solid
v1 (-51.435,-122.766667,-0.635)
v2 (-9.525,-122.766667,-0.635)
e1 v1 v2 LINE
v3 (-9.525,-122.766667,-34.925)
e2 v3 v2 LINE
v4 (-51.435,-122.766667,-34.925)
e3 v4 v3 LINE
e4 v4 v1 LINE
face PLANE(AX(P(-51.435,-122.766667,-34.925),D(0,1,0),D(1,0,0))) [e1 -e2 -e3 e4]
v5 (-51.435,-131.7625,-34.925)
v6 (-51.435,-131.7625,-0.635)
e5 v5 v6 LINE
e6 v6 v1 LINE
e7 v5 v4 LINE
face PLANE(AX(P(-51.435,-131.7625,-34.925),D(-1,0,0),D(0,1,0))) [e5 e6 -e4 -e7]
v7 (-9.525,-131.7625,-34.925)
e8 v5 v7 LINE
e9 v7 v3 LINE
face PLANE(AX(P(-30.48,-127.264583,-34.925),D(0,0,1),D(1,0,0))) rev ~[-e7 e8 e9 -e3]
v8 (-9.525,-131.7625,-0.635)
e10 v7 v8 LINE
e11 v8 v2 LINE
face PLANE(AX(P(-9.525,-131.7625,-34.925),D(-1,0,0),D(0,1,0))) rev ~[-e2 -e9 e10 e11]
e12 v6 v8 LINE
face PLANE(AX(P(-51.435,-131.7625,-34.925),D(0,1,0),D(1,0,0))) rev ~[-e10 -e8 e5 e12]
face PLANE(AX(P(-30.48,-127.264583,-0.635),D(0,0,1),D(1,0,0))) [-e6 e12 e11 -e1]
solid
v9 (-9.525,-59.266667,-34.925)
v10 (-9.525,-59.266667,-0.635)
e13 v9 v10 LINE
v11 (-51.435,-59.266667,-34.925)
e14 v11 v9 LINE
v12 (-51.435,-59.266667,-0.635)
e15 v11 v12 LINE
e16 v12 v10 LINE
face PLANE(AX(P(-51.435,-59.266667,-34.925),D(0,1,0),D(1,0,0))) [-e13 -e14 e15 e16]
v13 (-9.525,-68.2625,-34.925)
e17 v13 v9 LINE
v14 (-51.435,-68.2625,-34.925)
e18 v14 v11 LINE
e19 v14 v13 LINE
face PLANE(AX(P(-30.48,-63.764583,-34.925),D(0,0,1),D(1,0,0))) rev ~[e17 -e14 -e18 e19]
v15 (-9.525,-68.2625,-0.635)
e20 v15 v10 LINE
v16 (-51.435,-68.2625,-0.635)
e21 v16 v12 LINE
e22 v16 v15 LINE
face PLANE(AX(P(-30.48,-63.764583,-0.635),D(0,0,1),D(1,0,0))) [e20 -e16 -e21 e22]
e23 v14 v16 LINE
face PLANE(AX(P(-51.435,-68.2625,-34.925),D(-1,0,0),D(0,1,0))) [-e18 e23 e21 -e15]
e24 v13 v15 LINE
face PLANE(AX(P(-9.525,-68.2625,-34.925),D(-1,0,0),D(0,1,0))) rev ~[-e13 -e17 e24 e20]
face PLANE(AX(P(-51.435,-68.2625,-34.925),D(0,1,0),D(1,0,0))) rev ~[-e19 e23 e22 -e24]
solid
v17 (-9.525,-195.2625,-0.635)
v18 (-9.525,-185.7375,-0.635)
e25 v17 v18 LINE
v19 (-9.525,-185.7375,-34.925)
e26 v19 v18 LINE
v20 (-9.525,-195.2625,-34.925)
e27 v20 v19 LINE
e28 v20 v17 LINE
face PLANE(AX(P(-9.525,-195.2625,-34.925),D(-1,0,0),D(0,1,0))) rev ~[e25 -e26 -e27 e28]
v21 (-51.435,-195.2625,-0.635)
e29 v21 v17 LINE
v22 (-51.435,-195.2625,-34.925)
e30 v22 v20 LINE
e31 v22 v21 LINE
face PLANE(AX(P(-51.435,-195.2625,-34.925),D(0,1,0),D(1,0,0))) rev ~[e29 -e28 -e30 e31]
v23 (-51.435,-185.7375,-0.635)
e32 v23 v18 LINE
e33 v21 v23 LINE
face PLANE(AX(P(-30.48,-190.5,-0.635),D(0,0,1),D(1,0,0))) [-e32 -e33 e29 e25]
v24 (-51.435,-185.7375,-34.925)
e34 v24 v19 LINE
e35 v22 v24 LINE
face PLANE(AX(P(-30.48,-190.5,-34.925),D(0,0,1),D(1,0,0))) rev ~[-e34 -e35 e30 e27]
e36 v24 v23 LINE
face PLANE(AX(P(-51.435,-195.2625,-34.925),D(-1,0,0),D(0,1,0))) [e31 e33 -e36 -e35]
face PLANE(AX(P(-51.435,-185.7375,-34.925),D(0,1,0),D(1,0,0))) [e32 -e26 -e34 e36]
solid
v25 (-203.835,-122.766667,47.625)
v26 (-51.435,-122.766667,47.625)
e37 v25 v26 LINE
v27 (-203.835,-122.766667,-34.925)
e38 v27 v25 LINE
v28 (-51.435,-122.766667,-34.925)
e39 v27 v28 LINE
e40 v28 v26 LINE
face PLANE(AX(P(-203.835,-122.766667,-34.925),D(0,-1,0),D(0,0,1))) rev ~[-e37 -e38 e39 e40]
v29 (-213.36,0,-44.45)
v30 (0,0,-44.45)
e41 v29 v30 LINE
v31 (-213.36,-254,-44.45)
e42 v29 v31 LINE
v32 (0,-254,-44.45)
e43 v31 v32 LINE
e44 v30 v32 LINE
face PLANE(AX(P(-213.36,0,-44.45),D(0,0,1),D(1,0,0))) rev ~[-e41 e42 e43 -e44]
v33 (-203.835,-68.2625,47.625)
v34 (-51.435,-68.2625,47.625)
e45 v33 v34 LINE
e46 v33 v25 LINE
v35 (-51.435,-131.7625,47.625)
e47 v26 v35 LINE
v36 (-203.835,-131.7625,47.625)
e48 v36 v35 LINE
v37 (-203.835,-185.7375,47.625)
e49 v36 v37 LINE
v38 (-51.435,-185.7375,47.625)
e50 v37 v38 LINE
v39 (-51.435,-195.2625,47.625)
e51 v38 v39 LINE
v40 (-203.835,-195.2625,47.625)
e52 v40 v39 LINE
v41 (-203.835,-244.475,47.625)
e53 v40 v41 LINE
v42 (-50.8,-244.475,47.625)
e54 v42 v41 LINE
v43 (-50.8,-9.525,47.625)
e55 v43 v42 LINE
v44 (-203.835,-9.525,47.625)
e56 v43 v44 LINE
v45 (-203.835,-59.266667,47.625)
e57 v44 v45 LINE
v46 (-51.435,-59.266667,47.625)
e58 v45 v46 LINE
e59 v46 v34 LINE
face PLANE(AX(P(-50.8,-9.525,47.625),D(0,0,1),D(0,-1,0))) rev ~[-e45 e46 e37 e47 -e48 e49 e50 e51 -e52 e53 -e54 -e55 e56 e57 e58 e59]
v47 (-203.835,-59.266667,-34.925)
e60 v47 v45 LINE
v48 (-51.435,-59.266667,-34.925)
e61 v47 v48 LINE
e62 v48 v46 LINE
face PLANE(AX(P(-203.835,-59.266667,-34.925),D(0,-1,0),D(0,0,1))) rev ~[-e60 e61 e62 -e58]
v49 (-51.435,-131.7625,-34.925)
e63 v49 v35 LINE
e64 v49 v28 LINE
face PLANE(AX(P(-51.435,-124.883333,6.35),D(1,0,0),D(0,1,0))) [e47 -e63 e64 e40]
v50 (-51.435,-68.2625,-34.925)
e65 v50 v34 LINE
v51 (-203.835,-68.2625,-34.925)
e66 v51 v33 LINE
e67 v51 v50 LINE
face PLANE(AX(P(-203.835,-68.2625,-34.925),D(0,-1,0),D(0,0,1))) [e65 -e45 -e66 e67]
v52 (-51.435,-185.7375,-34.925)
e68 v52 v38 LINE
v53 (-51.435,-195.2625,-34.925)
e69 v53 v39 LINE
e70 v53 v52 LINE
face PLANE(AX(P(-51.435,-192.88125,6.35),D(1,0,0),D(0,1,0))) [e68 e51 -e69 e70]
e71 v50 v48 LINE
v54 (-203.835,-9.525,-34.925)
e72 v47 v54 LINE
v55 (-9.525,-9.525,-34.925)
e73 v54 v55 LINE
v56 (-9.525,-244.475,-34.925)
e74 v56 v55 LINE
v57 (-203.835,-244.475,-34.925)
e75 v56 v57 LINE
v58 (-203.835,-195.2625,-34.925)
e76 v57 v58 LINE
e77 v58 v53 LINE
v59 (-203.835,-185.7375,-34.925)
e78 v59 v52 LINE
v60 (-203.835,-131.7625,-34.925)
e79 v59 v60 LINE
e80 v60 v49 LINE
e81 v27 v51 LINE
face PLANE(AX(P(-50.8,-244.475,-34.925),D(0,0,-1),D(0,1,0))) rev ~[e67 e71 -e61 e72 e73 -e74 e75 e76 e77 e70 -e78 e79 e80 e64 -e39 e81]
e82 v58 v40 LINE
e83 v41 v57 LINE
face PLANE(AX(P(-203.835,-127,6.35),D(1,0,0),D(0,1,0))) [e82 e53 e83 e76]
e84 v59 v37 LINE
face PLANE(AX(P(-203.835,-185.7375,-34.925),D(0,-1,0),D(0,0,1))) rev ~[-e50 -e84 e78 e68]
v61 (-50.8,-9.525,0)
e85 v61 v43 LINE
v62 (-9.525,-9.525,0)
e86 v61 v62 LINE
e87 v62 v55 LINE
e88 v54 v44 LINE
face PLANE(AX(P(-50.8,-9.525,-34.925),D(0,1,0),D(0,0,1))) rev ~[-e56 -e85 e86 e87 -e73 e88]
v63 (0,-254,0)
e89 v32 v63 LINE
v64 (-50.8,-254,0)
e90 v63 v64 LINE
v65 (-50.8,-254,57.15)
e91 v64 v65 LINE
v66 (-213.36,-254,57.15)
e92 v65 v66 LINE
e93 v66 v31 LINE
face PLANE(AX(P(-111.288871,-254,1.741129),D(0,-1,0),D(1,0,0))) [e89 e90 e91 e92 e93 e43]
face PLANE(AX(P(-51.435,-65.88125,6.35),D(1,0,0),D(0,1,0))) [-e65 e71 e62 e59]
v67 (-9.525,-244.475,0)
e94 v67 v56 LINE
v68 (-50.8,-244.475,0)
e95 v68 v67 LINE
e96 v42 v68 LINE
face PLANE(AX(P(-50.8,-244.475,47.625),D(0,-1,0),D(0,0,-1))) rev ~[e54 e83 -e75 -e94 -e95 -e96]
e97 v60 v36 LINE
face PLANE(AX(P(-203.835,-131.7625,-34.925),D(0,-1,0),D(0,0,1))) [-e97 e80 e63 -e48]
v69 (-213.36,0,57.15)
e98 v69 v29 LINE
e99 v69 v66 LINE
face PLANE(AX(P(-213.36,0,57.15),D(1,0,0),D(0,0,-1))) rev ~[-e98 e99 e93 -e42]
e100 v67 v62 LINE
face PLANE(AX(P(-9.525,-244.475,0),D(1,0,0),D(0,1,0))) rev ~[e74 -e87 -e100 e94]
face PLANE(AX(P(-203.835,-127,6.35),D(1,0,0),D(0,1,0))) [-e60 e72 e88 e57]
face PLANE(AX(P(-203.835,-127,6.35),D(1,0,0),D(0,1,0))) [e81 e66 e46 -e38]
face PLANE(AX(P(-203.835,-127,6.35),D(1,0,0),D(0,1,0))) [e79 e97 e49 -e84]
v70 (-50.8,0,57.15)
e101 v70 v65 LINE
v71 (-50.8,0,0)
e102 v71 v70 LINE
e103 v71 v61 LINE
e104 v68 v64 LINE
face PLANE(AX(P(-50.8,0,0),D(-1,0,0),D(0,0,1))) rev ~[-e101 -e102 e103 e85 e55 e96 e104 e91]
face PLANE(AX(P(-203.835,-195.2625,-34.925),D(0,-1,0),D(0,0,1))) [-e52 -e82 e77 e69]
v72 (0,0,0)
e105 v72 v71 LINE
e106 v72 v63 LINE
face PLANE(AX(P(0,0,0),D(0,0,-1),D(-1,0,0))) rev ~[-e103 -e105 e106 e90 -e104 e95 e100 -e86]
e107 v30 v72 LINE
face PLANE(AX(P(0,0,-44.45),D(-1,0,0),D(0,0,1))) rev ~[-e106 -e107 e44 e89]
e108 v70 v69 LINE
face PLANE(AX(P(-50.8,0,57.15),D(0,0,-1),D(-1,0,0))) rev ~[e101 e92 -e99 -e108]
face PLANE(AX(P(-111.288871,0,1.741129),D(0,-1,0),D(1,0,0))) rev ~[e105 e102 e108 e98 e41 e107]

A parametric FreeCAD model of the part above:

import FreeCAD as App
import Part
import Sketcher
Q = App.Units.Quantity


def add_polygon(sketch, points):
    """Adds a closed chain of lines whose ends are joined by coincident constraints."""
    first, n = sketch.GeometryCount, len(points)
    for a, b in zip(points, points[1:] + points[:1]):
        sketch.addGeometry(Part.LineSegment(App.Vector(*a, 0), App.Vector(*b, 0)), False)
    for i in range(n):
        sketch.addConstraint(Sketcher.Constraint("Coincident", first + i, 2, first + (i + 1) % n, 1))

doc = App.newDocument("Part")
body = doc.addObject("PartDesign::Body", "Body")

# Sketch on XZ plane
sketch1 = body.newObject("Sketcher::SketchObject", "Sketch")
sketch1.AttachmentSupport = (doc.getObject("XZ_Plane"), [""])
sketch1.MapMode = "FlatFace"
add_polygon(sketch1, [(-51, 57), (-213, 57), (-213, -44), (0, -44), (0, 0), (-51, 0)])  # lines 0-5
sketch1.addConstraint(Sketcher.Constraint("Horizontal", 0))
sketch1.addConstraint(Sketcher.Constraint("Vertical", 1))
sketch1.addConstraint(Sketcher.Constraint("Horizontal", 2))
sketch1.addConstraint(Sketcher.Constraint("Vertical", 3))
sketch1.addConstraint(Sketcher.Constraint("Horizontal", 4))
sketch1.addConstraint(Sketcher.Constraint("Vertical", 5))
sketch1.addConstraint(Sketcher.Constraint("Coincident", 3, 2, -1, 1))
sketch1.addConstraint(Sketcher.Constraint("DistanceX", 4, 2, 4, 1, Q("2 in")))
sketch1.addConstraint(Sketcher.Constraint("DistanceY", 1, 2, 1, 1, Q("4 in")))
sketch1.addConstraint(Sketcher.Constraint("DistanceX", 0, 2, 0, 1, Q("6.4 in")))
sketch1.addConstraint(Sketcher.Constraint("DistanceY", 3, 1, 3, 2, Q("1.75 in")))
pad1 = body.newObject("PartDesign::Pad", "Pad")
pad1.Profile = sketch1
pad1.Length = Q("10 in")

# Sketch on XY plane
sketch2 = body.newObject("Sketcher::SketchObject", "Sketch001")
sketch2.AttachmentSupport = (doc.getObject("XY_Plane"), [""])
sketch2.MapMode = "FlatFace"
add_polygon(sketch2, [(-51, -10), (-51, -244), (-10, -244), (-10, -10)])  # lines 0-3
sketch2.addConstraint(Sketcher.Constraint("Vertical", 0))
sketch2.addConstraint(Sketcher.Constraint("Horizontal", 1))
sketch2.addConstraint(Sketcher.Constraint("Vertical", 2))
sketch2.addConstraint(Sketcher.Constraint("Horizontal", 3))
sketch2.addConstraint(Sketcher.Constraint("DistanceX", 0, 2, -1, 1, Q("2 in")))
sketch2.addConstraint(Sketcher.Constraint("DistanceY", 0, 2, 0, 1, Q("9.25 in")))
sketch2.addConstraint(Sketcher.Constraint("DistanceX", 1, 1, 1, 2, Q("1.625 in")))
sketch2.addConstraint(Sketcher.Constraint("DistanceY", 0, 2, -1, 1, Q("9.625 in")))
pocket1 = body.newObject("PartDesign::Pocket", "Pocket")
pocket1.Profile = sketch2
pocket1.Length = Q("1.375 in")

# Sketch on YZ plane
sketch3 = body.newObject("Sketcher::SketchObject", "Sketch002")
sketch3.AttachmentSupport = (doc.getObject("YZ_Plane"), [""])
sketch3.MapMode = "FlatFace"
sketch3.AttachmentOffset = App.Placement(App.Vector(0, 0, -2 * 25.4), App.Rotation())
add_polygon(sketch3, [(-244, 48), (-244, -35), (-10, -35), (-10, 48)])  # lines 0-3
sketch3.addConstraint(Sketcher.Constraint("Vertical", 0))
sketch3.addConstraint(Sketcher.Constraint("Horizontal", 1))
sketch3.addConstraint(Sketcher.Constraint("Vertical", 2))
sketch3.addConstraint(Sketcher.Constraint("Horizontal", 3))
sketch3.addConstraint(Sketcher.Constraint("DistanceX", 1, 1, 1, 2, Q("9.25 in")))
sketch3.addConstraint(Sketcher.Constraint("DistanceY", 0, 2, 0, 1, Q("3.25 in")))
sketch3.addConstraint(Sketcher.Constraint("DistanceX", 0, 2, -1, 1, Q("9.625 in")))
sketch3.addConstraint(Sketcher.Constraint("DistanceY", 0, 2, -1, 1, Q("1.375 in")))
pocket2 = body.newObject("PartDesign::Pocket", "Pocket001")
pocket2.Profile = sketch3
pocket2.Length = Q("6.025 in")

# Sketch on YZ plane
sketch4 = body.newObject("Sketcher::SketchObject", "Sketch003")
sketch4.AttachmentSupport = (doc.getObject("YZ_Plane"), [""])
sketch4.MapMode = "FlatFace"
sketch4.AttachmentOffset = App.Placement(App.Vector(0, 0, -8.025 * 25.4), App.Rotation())
add_polygon(sketch4, [(-123, -35), (-123, 48), (-132, 48), (-132, -35)])  # lines 0-3
add_polygon(sketch4, [(-68, 48), (-68, -35), (-59, -35), (-59, 48)])  # lines 4-7
add_polygon(sketch4, [(-195, 48), (-195, -35), (-186, -35), (-186, 48)])  # lines 8-11
sketch4.addConstraint(Sketcher.Constraint("Vertical", 0))
sketch4.addConstraint(Sketcher.Constraint("Horizontal", 1))
sketch4.addConstraint(Sketcher.Constraint("Vertical", 2))
sketch4.addConstraint(Sketcher.Constraint("Horizontal", 3))
sketch4.addConstraint(Sketcher.Constraint("Vertical", 4))
sketch4.addConstraint(Sketcher.Constraint("Horizontal", 5))
sketch4.addConstraint(Sketcher.Constraint("Vertical", 6))
sketch4.addConstraint(Sketcher.Constraint("Horizontal", 7))
sketch4.addConstraint(Sketcher.Constraint("Vertical", 8))
sketch4.addConstraint(Sketcher.Constraint("Horizontal", 9))
sketch4.addConstraint(Sketcher.Constraint("Vertical", 10))
sketch4.addConstraint(Sketcher.Constraint("Horizontal", 11))
sketch4.addConstraint(Sketcher.Constraint("Horizontal", 3, 2, 4, 2))
sketch4.addConstraint(Sketcher.Constraint("Horizontal", 1, 2, 6, 2))
sketch4.addConstraint(Sketcher.Constraint("Horizontal", 5, 2, 8, 2))
sketch4.addConstraint(Sketcher.Constraint("Horizontal", 7, 2, 10, 2))
sketch4.addConstraint(Sketcher.Constraint("Equal", 3, 5))
sketch4.addConstraint(Sketcher.Constraint("DistanceX", 8, 2, 4, 2, Q("5 in")))
sketch4.addConstraint(Sketcher.Constraint("DistanceY", 0, 1, 0, 2, Q("3.25 in")))
sketch4.addConstraint(Sketcher.Constraint("DistanceX", 2, 2, 4, 2, Q("2.5 in")))
sketch4.addConstraint(Sketcher.Constraint("DistanceX", 9, 1, 9, 2, Q("0.375 in")))
sketch4.addConstraint(Sketcher.Constraint("DistanceY", -1, 1, 0, 2, Q("1.875 in")))
sketch4.addConstraint(Sketcher.Constraint("DistanceX", 1, 2, -1, 1, Q("5.1875 in")))
sketch4.addConstraint(Sketcher.Constraint("DistanceX", 1, 2, 1, 1, 8.995833))
pad2 = body.newObject("PartDesign::Pad", "Pad001")
pad2.Profile = sketch4
pad2.Length = Q("6 in")
body2 = doc.addObject("PartDesign::Body", "Body001")

# Sketch on XY plane
sketch5 = body2.newObject("Sketcher::SketchObject", "Sketch004")
sketch5.AttachmentSupport = (doc.getObject("XY_Plane001"), [""])
sketch5.MapMode = "FlatFace"
sketch5.AttachmentOffset = App.Placement(App.Vector(0, 0, -1.375 * 25.4), App.Rotation())
add_polygon(sketch5, [(-51, -59), (-51, -68), (-10, -68), (-10, -59)])  # lines 0-3
sketch5.addConstraint(Sketcher.Constraint("Vertical", 0))
sketch5.addConstraint(Sketcher.Constraint("Horizontal", 1))
sketch5.addConstraint(Sketcher.Constraint("Vertical", 2))
sketch5.addConstraint(Sketcher.Constraint("Horizontal", 3))
sketch5.addConstraint(Sketcher.Constraint("DistanceX", 1, 1, 1, 2, Q("1.65 in")))
sketch5.addConstraint(Sketcher.Constraint("DistanceX", 0, 2, -1, 1, Q("2.025 in")))
sketch5.addConstraint(Sketcher.Constraint("DistanceY", 0, 2, -1, 1, Q("2.6875 in")))
sketch5.addConstraint(Sketcher.Constraint("DistanceY", 0, 2, 0, 1, 8.995833))
pad3 = body2.newObject("PartDesign::Pad", "Pad002")
pad3.Profile = sketch5
pad3.Length = Q("1.35 in")
body3 = doc.addObject("PartDesign::Body", "Body002")

# Sketch on XY plane
sketch6 = body3.newObject("Sketcher::SketchObject", "Sketch005")
sketch6.AttachmentSupport = (doc.getObject("XY_Plane002"), [""])
sketch6.MapMode = "FlatFace"
sketch6.AttachmentOffset = App.Placement(App.Vector(0, 0, -1.375 * 25.4), App.Rotation())
add_polygon(sketch6, [(-51, -123), (-51, -132), (-10, -132), (-10, -123)])  # lines 0-3
sketch6.addConstraint(Sketcher.Constraint("Vertical", 0))
sketch6.addConstraint(Sketcher.Constraint("Horizontal", 1))
sketch6.addConstraint(Sketcher.Constraint("Vertical", 2))
sketch6.addConstraint(Sketcher.Constraint("Horizontal", 3))
sketch6.addConstraint(Sketcher.Constraint("DistanceX", 1, 1, 1, 2, Q("1.65 in")))
sketch6.addConstraint(Sketcher.Constraint("DistanceX", 0, 2, -1, 1, Q("2.025 in")))
sketch6.addConstraint(Sketcher.Constraint("DistanceY", 0, 2, -1, 1, Q("5.1875 in")))
sketch6.addConstraint(Sketcher.Constraint("DistanceY", 0, 2, 0, 1, 8.995833))
pad4 = body3.newObject("PartDesign::Pad", "Pad003")
pad4.Profile = sketch6
pad4.Length = Q("1.35 in")
body4 = doc.addObject("PartDesign::Body", "Body003")

# Sketch on XY plane
sketch7 = body4.newObject("Sketcher::SketchObject", "Sketch006")
sketch7.AttachmentSupport = (doc.getObject("XY_Plane003"), [""])
sketch7.MapMode = "FlatFace"
sketch7.AttachmentOffset = App.Placement(App.Vector(0, 0, -1.375 * 25.4), App.Rotation())
add_polygon(sketch7, [(-51, -186), (-51, -195), (-10, -195), (-10, -186)])  # lines 0-3
sketch7.addConstraint(Sketcher.Constraint("Vertical", 0))
sketch7.addConstraint(Sketcher.Constraint("Horizontal", 1))
sketch7.addConstraint(Sketcher.Constraint("Vertical", 2))
sketch7.addConstraint(Sketcher.Constraint("Horizontal", 3))
sketch7.addConstraint(Sketcher.Constraint("DistanceX", 1, 1, 1, 2, Q("1.65 in")))
sketch7.addConstraint(Sketcher.Constraint("DistanceY", 0, 2, 0, 1, Q("0.375 in")))
sketch7.addConstraint(Sketcher.Constraint("DistanceX", 0, 2, -1, 1, Q("2.025 in")))
sketch7.addConstraint(Sketcher.Constraint("DistanceY", 0, 2, -1, 1, Q("7.6875 in")))
pad5 = body4.newObject("PartDesign::Pad", "Pad004")
pad5.Profile = sketch7
pad5.Length = Q("1.35 in")

doc.recompute()
